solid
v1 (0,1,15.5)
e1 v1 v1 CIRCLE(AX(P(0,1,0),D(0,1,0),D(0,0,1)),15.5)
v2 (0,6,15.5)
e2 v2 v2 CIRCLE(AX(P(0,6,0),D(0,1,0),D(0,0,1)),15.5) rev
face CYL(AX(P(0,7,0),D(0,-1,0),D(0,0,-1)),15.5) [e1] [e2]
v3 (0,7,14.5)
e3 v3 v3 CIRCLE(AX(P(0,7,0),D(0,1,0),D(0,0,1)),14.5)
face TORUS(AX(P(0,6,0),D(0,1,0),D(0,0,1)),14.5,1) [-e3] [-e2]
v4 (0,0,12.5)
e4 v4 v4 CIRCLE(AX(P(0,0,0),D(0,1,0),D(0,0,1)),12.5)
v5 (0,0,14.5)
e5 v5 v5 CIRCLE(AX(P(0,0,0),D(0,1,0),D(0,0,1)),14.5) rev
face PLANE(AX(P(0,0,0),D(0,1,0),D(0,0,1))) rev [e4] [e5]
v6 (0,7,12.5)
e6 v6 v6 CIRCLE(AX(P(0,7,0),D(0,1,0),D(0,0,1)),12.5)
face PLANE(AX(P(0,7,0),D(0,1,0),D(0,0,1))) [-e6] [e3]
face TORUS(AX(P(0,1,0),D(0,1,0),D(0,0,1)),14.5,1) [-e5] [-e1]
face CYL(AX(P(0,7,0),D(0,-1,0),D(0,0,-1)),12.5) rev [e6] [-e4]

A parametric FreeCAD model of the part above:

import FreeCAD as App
import Part
import Sketcher
Q = App.Units.Quantity


def edges_at(feature, points):
    """Names of the edges that pass closest to the given points."""
    edges = feature.Shape.Edges
    near = lambda p: min(range(len(edges)), key=lambda i: edges[i].distToShape(Part.Vertex(*p))[0])
    return sorted({f"Edge{near(p) + 1}" for p in points})

doc = App.newDocument("Part")
params = doc.addObject("Spreadsheet::Sheet", "Params")
for row, (alias, value) in enumerate([
    ("sketch1_diameter", "31 mm"),
    ("sketch1_diameter2", "25 mm"),
    ("pad1_length", "7 mm"),
    ("fillet_radius", "1 mm"),
], start=1):
    params.set(f"A{row}", alias)
    params.set(f"B{row}", "=" + value)
    params.setAlias(f"B{row}", alias)

body = doc.addObject("PartDesign::Body", "Body")

sketch1 = body.newObject("Sketcher::SketchObject", "Sketch")
sketch1.AttachmentSupport = (doc.getObject("XZ_Plane"), [""])
sketch1.MapMode = "FlatFace"
sketch1.addGeometry(Part.Circle(App.Vector(0, 0, 0), App.Vector(0, 0, 1), 16), False)
sketch1.addGeometry(Part.Circle(App.Vector(0, 0, 0), App.Vector(0, 0, 1), 12), False)
sketch1.addConstraint(Sketcher.Constraint("Coincident", 0, 3, -1, 1))
sketch1.addConstraint(Sketcher.Constraint("Coincident", 1, 3, -1, 1))
sketch1.addConstraint(Sketcher.Constraint("Diameter", 0, Q("31 mm")))
sketch1.addConstraint(Sketcher.Constraint("Diameter", 1, Q("25 mm")))
sketch1.setExpression("Constraints[2]", "Params.sketch1_diameter")
sketch1.setExpression("Constraints[3]", "Params.sketch1_diameter2")
pad1 = body.newObject("PartDesign::Pad", "Pad")
pad1.Profile = sketch1
pad1.setExpression("Length", "Params.pad1_length")
pad1.Reversed = True
doc.recompute()

fillet = body.newObject("PartDesign::Fillet", "Fillet")
fillet.Base = (pad1, edges_at(pad1, [(0, 0, -15.5), (0, 7, -15.5)]))
fillet.setExpression("Radius", "Params.fillet_radius")

doc.recompute()
